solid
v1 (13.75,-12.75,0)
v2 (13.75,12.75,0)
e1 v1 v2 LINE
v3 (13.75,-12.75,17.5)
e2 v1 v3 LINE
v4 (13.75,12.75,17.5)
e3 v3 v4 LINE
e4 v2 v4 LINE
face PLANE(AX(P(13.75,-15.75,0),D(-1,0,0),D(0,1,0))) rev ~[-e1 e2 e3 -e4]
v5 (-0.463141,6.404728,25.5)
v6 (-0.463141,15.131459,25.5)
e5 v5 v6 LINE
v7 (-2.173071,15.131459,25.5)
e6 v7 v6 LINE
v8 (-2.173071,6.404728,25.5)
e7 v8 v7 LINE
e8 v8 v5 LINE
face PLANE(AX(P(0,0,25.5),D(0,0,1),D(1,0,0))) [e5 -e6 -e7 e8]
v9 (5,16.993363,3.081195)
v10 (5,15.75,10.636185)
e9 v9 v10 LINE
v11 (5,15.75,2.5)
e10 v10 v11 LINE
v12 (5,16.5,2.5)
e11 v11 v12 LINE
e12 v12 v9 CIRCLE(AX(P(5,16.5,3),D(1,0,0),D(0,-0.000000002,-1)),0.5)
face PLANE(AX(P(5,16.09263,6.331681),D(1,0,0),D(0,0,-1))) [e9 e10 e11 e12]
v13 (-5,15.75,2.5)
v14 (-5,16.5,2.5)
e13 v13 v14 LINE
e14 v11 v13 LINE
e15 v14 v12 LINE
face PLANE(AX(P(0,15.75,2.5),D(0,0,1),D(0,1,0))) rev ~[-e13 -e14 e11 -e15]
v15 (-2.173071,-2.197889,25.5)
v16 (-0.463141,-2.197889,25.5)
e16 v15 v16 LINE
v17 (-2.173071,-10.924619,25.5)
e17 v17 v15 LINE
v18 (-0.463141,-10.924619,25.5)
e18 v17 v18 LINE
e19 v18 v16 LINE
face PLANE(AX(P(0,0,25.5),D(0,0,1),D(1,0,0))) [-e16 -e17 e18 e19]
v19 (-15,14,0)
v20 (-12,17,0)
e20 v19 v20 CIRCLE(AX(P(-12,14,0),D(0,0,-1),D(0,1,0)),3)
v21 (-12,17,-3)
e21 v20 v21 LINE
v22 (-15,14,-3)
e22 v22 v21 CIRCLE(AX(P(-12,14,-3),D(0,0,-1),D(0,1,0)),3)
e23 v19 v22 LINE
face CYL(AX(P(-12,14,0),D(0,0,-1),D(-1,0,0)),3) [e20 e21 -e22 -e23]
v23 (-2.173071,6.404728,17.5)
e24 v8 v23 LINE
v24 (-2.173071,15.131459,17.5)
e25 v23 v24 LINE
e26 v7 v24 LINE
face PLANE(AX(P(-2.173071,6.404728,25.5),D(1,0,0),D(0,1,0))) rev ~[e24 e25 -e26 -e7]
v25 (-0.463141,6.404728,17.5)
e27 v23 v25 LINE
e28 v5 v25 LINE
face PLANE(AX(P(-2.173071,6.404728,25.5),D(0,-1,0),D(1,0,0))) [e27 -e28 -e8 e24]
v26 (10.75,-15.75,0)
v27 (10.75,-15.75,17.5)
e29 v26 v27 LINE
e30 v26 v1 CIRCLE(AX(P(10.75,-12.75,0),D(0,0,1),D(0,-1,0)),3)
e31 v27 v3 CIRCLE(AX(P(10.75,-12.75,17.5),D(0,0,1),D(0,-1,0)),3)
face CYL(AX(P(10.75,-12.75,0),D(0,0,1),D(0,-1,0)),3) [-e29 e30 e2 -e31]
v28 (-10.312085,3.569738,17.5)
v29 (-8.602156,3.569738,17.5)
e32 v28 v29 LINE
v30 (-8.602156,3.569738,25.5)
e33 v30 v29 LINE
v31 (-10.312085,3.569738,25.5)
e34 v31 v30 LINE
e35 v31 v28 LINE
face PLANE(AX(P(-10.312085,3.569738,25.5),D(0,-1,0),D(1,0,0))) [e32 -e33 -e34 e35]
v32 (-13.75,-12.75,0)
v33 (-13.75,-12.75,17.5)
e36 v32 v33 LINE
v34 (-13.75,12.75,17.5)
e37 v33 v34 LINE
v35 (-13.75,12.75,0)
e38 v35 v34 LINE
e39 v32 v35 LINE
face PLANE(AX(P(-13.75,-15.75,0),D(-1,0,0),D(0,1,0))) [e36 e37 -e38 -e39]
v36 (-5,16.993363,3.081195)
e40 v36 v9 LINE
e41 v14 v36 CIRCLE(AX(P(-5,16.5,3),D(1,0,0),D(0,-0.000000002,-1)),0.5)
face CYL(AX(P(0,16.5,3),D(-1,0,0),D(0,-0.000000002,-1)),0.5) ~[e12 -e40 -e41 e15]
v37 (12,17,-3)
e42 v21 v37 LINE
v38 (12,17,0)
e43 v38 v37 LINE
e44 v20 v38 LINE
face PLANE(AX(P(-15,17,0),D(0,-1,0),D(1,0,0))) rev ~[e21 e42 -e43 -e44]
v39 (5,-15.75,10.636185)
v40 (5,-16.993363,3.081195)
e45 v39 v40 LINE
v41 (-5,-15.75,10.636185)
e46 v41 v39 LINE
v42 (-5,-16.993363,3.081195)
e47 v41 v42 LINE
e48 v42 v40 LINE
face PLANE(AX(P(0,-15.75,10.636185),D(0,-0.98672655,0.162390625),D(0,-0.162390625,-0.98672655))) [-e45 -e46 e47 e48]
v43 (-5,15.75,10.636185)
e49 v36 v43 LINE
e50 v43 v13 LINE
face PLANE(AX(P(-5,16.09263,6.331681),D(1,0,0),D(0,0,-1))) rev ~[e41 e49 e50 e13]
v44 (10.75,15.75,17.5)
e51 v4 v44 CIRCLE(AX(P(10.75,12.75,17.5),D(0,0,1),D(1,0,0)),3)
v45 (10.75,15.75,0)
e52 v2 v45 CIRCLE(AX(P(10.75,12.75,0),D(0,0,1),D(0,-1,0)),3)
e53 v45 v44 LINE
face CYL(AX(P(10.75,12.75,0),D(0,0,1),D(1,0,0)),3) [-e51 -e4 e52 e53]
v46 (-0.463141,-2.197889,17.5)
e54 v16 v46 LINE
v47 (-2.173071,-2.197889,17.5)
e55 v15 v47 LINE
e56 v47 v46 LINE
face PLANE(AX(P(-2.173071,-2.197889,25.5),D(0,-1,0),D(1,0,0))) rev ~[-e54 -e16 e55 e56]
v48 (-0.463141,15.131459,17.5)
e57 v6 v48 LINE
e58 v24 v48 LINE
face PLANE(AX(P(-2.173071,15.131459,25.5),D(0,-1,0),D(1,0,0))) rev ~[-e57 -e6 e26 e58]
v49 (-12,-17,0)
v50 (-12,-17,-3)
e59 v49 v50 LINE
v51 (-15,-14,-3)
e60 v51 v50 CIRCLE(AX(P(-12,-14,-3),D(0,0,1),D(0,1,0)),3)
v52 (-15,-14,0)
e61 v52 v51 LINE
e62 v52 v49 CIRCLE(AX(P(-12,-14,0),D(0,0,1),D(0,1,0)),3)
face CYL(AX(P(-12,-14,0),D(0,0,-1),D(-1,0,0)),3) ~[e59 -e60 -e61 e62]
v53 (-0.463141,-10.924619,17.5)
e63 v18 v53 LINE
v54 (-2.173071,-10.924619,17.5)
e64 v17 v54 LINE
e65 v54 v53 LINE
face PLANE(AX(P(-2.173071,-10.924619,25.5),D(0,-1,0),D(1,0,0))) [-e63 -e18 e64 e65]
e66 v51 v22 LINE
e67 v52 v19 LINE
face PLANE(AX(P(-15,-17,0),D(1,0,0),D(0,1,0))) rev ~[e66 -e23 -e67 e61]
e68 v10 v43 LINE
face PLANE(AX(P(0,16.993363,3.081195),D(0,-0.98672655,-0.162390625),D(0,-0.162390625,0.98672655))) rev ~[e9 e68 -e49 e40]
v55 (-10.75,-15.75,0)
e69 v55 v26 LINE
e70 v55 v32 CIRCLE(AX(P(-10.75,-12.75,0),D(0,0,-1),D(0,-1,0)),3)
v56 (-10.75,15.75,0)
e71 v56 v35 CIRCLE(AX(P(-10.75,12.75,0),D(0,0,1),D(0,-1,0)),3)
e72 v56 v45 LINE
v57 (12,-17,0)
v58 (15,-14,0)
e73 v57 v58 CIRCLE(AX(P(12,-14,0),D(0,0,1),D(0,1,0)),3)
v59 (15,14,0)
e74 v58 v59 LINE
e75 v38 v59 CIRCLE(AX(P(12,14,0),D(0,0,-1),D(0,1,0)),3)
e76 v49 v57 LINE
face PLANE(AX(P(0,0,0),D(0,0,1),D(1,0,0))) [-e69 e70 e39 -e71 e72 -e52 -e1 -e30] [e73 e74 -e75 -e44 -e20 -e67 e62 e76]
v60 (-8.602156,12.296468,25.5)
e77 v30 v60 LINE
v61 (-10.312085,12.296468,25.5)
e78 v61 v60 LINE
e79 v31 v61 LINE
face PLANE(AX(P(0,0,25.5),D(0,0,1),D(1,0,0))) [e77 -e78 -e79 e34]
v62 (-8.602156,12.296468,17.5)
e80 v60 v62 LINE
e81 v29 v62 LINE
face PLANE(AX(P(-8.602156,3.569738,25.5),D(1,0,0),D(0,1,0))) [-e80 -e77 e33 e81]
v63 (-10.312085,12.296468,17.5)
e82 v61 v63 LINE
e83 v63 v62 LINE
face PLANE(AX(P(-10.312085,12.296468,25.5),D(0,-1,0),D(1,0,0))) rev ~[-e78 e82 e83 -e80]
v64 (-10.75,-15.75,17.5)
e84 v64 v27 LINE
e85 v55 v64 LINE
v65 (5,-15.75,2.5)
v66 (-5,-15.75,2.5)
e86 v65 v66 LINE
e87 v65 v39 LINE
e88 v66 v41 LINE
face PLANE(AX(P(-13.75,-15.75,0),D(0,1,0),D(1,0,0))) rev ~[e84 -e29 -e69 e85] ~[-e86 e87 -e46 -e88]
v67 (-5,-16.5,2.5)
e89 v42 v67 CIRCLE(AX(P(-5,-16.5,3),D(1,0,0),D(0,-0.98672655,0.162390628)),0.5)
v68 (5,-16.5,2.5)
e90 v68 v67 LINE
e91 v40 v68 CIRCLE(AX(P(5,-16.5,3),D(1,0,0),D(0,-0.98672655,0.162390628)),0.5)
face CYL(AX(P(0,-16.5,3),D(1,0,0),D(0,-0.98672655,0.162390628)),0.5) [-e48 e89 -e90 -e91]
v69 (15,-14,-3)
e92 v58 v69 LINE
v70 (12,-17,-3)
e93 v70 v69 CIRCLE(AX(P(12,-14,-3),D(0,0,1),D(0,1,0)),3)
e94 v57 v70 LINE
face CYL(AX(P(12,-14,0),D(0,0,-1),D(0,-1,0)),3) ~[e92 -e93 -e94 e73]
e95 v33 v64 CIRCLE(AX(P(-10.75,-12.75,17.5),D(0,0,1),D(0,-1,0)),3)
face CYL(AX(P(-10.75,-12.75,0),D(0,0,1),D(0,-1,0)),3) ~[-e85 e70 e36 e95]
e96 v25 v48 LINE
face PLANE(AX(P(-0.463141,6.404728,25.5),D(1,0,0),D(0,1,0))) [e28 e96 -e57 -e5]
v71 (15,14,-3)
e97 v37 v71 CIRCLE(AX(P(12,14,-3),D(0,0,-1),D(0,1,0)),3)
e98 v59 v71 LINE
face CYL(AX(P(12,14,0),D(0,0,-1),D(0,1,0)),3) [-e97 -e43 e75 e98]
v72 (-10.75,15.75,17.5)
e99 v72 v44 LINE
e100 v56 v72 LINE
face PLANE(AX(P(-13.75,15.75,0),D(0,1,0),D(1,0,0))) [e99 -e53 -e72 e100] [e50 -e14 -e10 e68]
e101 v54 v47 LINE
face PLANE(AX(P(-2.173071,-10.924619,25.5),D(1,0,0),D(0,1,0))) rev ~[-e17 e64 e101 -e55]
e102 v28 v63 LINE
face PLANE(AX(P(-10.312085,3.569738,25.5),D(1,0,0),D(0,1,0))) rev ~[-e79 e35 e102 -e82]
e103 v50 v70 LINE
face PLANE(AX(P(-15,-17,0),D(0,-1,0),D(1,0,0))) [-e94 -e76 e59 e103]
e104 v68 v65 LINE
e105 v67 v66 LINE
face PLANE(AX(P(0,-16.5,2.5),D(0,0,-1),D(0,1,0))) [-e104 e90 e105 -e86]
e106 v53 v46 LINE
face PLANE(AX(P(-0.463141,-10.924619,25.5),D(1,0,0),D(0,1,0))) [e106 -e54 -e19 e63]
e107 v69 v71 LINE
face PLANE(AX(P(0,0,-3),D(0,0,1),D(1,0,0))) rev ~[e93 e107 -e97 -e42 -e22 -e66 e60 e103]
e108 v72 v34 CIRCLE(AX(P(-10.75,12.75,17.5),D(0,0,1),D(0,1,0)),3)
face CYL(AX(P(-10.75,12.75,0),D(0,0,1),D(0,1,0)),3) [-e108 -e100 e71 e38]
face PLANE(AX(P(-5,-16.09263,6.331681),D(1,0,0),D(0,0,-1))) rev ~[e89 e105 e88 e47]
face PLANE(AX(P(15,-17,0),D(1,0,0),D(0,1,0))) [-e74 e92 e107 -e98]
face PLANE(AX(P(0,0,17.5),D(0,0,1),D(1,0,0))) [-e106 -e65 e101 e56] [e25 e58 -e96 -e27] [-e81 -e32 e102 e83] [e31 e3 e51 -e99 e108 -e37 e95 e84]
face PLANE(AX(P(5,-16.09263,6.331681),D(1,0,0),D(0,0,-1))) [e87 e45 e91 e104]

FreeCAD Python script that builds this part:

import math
import FreeCAD as App
import Part
import Sketcher
from FreeCAD import Vector


def edges_at(feature, points):
    """Names of the edges that pass closest to the given points."""
    edges = feature.Shape.Edges
    near = lambda p: min(range(len(edges)), key=lambda i: edges[i].distToShape(Part.Vertex(*p))[0])
    return sorted({f"Edge{near(p) + 1}" for p in points})


def add_polygon(sketch, points):
    """Adds a closed chain of lines whose ends are joined by coincident constraints."""
    first, n = sketch.GeometryCount, len(points)
    for a, b in zip(points, points[1:] + points[:1]):
        sketch.addGeometry(Part.LineSegment(App.Vector(*a, 0), App.Vector(*b, 0)), False)
    for i in range(n):
        sketch.addConstraint(Sketcher.Constraint("Coincident", first + i, 2, first + (i + 1) % n, 1))

doc = App.newDocument("Part")
params = doc.addObject("Spreadsheet::Sheet", "Params")
for row, (alias, value) in enumerate([
    ("sketch1_width", "30 mm"),
    ("sketch1_height", "34 mm"),
    ("pad1_length", "3 mm"),
    ("sketch2_width", "27.5 mm"),
    ("sketch2_height", "31.5 mm"),
    ("pad2_length", "25.5 mm"),
    ("fillet_radius", "3 mm"),
    ("sketch3_radius", "0.5 mm"),
    ("sketch3_width", "0.75 mm"),
    ("pad3_length", "10 mm"),
    ("pocket1_length", "8 mm"),
], start=1):
    params.set(f"A{row}", alias)
    params.set(f"B{row}", "=" + value)
    params.setAlias(f"B{row}", alias)

body = doc.addObject("PartDesign::Body", "Body")

# Sketch on XY plane
sketch1 = doc.addObject("Sketcher::SketchObject", "Sketch")
body.addObject(sketch1)
sketch1.AttachmentSupport = (doc.XY_Plane, [""])
sketch1.MapMode = "FlatFace"
add_polygon(sketch1, [(-15, 17), (-15, -17), (15, -17), (15, 17)])  # lines 0-3
sketch1.addConstraint([
    Sketcher.Constraint("Vertical", 0),
    Sketcher.Constraint("Horizontal", 1),
    Sketcher.Constraint("Vertical", 2),
    Sketcher.Constraint("Horizontal", 3),
    Sketcher.Constraint("Symmetric", 0, 2, 2, 2, -1, 1),
    Sketcher.Constraint("DistanceX", 1, 1, 1, 2, 30.0),
    Sketcher.Constraint("DistanceY", 0, 2, 0, 1, 34.0),
])
sketch1.setExpression("Constraints[9]", "Params.sketch1_width")
sketch1.setExpression("Constraints[10]", "Params.sketch1_height")
pad1 = doc.addObject("PartDesign::Pad", "Pad")
body.addObject(pad1)
pad1.Profile = sketch1
pad1.setExpression("Length", "Params.pad1_length")
pad1.Reversed = True

# Sketch on XY plane
sketch2 = doc.addObject("Sketcher::SketchObject", "Sketch001")
body.addObject(sketch2)
sketch2.AttachmentSupport = (doc.XY_Plane, [""])
sketch2.MapMode = "FlatFace"
add_polygon(sketch2, [(-14, 16), (-14, -16), (14, -16), (14, 16)])  # lines 0-3
sketch2.addConstraint([
    Sketcher.Constraint("Vertical", 0),
    Sketcher.Constraint("Horizontal", 1),
    Sketcher.Constraint("Vertical", 2),
    Sketcher.Constraint("Horizontal", 3),
    Sketcher.Constraint("Symmetric", 0, 2, 2, 2, -1, 1),
    Sketcher.Constraint("DistanceX", 1, 1, 1, 2, 27.5),
    Sketcher.Constraint("DistanceY", 0, 2, 0, 1, 31.5),
])
sketch2.setExpression("Constraints[9]", "Params.sketch2_width")
sketch2.setExpression("Constraints[10]", "Params.sketch2_height")
pad2 = doc.addObject("PartDesign::Pad", "Pad001")
body.addObject(pad2)
pad2.Profile = sketch2
pad2.setExpression("Length", "Params.pad2_length")
doc.recompute()

fillet = doc.addObject("PartDesign::Fillet", "Fillet")
body.addObject(fillet)
fillet.Base = (pad2, edges_at(pad2, [
    (13.75, -15.75, 12.75),
    (13.75, 15.75, 12.75),
    (-13.75, 15.75, 12.75),
    (-13.75, -15.75, 12.75),
    (15, -17, -1.5),
    (-15, -17, -1.5),
    (-15, 17, -1.5),
    (15, 17, -1.5),
]))
fillet.setExpression("Radius", "Params.fillet_radius")

# Sketch on YZ plane
sketch3 = doc.addObject("Sketcher::SketchObject", "Sketch002")
body.addObject(sketch3)
sketch3.AttachmentSupport = (doc.YZ_Plane, [""])
sketch3.MapMode = "FlatFace"
sketch3.addGeometry([
    Part.LineSegment(Vector(15.75, 2.5, 0), Vector(16.5, 2.5, 0)),  # 0
    Part.ArcOfCircle(Part.Circle(Vector(16.5, 3, 0), Vector(0, 0, 1), 0.5), math.radians(-90), math.radians(9)),  # 1
    Part.LineSegment(Vector(16.99, 3.08, 0), Vector(15.75, 10.64, 0)),  # 2
    Part.LineSegment(Vector(15.75, 10.64, 0), Vector(15.75, 2.5, 0)),  # 3
    Part.LineSegment(Vector(-15.75, 2.5, 0), Vector(-15.75, 10.64, 0)),  # 4
    Part.LineSegment(Vector(-15.75, 10.64, 0), Vector(-16.99, 3.08, 0)),  # 5
    Part.ArcOfCircle(Part.Circle(Vector(-16.5, 3, 0), Vector(0, 0, 1), 0.5), math.radians(171), math.radians(270)),  # 6
    Part.LineSegment(Vector(-16.5, 2.5, 0), Vector(-15.75, 2.5, 0)),  # 7
], False)
sketch3.addConstraint([
    Sketcher.Constraint("Tangent", 0, 2, 1, 1),
    Sketcher.Constraint("Tangent", 1, 2, 2, 1),
    Sketcher.Constraint("Coincident", 2, 2, 3, 1),
    Sketcher.Constraint("Coincident", 3, 2, 0, 1),
    Sketcher.Constraint("Coincident", 4, 2, 5, 1),
    Sketcher.Constraint("Tangent", 5, 2, 6, 1),
    Sketcher.Constraint("Tangent", 6, 2, 7, 1),
    Sketcher.Constraint("Coincident", 7, 2, 4, 1),
    Sketcher.Constraint("Horizontal", 0),
    Sketcher.Constraint("Vertical", 3),
    Sketcher.Constraint("Vertical", 4),
    Sketcher.Constraint("Horizontal", 7),
    Sketcher.Constraint("Equal", 1, 6),
    Sketcher.Constraint("Symmetric", 1, 3, 6, 3, -2),
    Sketcher.Constraint("Symmetric", 2, 2, 4, 2, -2),
    Sketcher.Constraint("Radius", 1, 0.5),
    Sketcher.Constraint("DistanceY", -1, 1, 1, 3, 3.0),
    Sketcher.Constraint("DistanceX", 6, 3, 1, 3, 33.0),
    Sketcher.Constraint("DistanceX", 0, 1, 0, 2, 0.75),
    Sketcher.Constraint("Distance", 2, 7.65662),
])
sketch3.setExpression("Constraints[15]", "Params.sketch3_radius")
sketch3.setExpression("Constraints[18]", "Params.sketch3_width")
pad3 = doc.addObject("PartDesign::Pad", "Pad002")
body.addObject(pad3)
pad3.Profile = sketch3
pad3.setExpression("Length", "Params.pad3_length")
pad3.Midplane = True

# Sketch on XY plane
sketch4 = doc.addObject("Sketcher::SketchObject", "Sketch003")
body.addObject(sketch4)
sketch4.AttachmentSupport = (doc.XY_Plane, [""])
sketch4.MapMode = "FlatFace"
sketch4.AttachmentOffset = App.Placement(Vector(0, 0, 25.5), App.Rotation())
add_polygon(sketch4, [(-21.4, 23.4), (-21.4, -23.4), (21.4, -23.4), (21.4, 23.4)])  # lines 0-3
add_polygon(sketch4, [(-0.5, -10.9), (-2.2, -10.9), (-2.2, -2.2), (-0.5, -2.2)])  # lines 4-7
add_polygon(sketch4, [(-8.6, 3.6), (-10.3, 3.6), (-10.3, 12.3), (-8.6, 12.3)])  # lines 8-11
add_polygon(sketch4, [(-0.5, 6.4), (-2.2, 6.4), (-2.2, 15.1), (-0.5, 15.1)])  # lines 12-15
sketch4.addConstraint([
    Sketcher.Constraint("Vertical", 0),
    Sketcher.Constraint("Horizontal", 1),
    Sketcher.Constraint("Vertical", 2),
    Sketcher.Constraint("Horizontal", 3),
    Sketcher.Constraint("Horizontal", 4),
    Sketcher.Constraint("Vertical", 5),
    Sketcher.Constraint("Horizontal", 6),
    Sketcher.Constraint("Vertical", 7),
    Sketcher.Constraint("Horizontal", 8),
    Sketcher.Constraint("Vertical", 9),
    Sketcher.Constraint("Horizontal", 10),
    Sketcher.Constraint("Vertical", 11),
    Sketcher.Constraint("Horizontal", 12),
    Sketcher.Constraint("Vertical", 13),
    Sketcher.Constraint("Horizontal", 14),
    Sketcher.Constraint("Vertical", 15),
    Sketcher.Constraint("Symmetric", 0, 2, 2, 2, -1, 1),
    Sketcher.Constraint("Vertical", 5, 2, 12, 2),
    Sketcher.Constraint("Vertical", 7, 2, 14, 2),
    Sketcher.Constraint("Equal", 6, 8),
    Sketcher.Constraint("Equal", 7, 9),
    Sketcher.Constraint("Equal", 11, 13),
    Sketcher.Constraint("DistanceX", 1, 1, 1, 2, 42.712),
    Sketcher.Constraint("DistanceY", 0, 2, 0, 1, 46.712),
    Sketcher.Constraint("DistanceX", 4, 2, 4, 1, 1.70993),
    Sketcher.Constraint("DistanceY", 5, 1, 5, 2, 8.72673),
    Sketcher.Constraint("DistanceX", 4, 2, -1, 1, 2.173071),
    Sketcher.Constraint("DistanceY", 4, 2, -1, 1, 10.924619),
    Sketcher.Constraint("DistanceY", -1, 1, 9, 2, 12.296468),
    Sketcher.Constraint("DistanceY", -1, 1, 12, 2, 6.404728),
    Sketcher.Constraint("DistanceX", 8, 2, -1, 1, 10.312085),
])
pocket1 = doc.addObject("PartDesign::Pocket", "Pocket")
body.addObject(pocket1)
pocket1.Profile = sketch4
pocket1.setExpression("Length", "Params.pocket1_length")

doc.recompute()
